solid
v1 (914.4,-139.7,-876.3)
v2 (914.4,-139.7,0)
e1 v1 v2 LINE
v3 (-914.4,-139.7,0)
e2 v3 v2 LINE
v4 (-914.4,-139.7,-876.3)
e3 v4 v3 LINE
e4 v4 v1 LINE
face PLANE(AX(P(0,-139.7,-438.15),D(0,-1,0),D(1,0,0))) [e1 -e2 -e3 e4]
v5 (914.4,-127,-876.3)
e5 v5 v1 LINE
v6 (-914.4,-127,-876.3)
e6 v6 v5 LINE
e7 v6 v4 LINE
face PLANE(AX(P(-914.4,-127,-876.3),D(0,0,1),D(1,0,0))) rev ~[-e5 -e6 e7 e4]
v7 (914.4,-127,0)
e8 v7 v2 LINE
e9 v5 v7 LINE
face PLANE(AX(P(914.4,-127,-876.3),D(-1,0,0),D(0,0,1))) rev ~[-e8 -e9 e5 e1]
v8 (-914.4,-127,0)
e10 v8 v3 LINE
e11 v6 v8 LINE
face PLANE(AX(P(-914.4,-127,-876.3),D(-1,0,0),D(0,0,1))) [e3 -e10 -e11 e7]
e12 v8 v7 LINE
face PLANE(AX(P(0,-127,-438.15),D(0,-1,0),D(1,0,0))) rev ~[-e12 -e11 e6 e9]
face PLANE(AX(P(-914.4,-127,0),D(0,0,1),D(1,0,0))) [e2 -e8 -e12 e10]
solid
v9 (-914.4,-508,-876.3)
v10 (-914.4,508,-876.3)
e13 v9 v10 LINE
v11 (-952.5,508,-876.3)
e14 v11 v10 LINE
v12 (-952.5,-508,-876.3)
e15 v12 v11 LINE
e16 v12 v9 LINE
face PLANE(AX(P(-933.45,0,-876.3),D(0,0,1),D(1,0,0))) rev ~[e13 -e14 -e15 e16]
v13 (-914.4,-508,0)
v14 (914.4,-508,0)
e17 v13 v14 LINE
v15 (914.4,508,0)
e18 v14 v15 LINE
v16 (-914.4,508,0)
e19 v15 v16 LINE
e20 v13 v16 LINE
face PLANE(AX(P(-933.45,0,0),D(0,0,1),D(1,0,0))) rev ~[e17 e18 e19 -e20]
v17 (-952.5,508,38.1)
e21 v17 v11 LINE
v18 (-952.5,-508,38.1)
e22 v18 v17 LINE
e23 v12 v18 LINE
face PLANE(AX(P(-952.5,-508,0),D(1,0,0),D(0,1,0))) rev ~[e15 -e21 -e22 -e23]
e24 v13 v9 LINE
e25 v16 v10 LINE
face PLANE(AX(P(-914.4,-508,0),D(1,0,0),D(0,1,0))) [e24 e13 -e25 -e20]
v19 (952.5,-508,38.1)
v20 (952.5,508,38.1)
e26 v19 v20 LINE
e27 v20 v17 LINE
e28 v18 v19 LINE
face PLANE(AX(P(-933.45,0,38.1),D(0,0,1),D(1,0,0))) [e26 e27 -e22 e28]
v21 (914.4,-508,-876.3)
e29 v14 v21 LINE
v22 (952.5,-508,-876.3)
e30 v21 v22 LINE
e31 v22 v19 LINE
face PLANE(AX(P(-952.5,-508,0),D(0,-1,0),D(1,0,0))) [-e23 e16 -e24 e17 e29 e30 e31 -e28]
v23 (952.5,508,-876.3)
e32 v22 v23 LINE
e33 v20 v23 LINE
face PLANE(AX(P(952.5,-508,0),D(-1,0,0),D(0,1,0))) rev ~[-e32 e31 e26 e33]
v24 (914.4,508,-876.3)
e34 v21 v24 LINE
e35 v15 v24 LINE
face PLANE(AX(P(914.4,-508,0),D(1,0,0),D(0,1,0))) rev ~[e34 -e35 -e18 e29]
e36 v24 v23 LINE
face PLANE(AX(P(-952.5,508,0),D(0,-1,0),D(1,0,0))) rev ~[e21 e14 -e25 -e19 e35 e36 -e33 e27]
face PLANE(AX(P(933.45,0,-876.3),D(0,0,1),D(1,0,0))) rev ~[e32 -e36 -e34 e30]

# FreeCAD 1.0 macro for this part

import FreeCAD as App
import Part
import Sketcher
from FreeCAD import Vector
Q = App.Units.Quantity

doc = App.newDocument("Part")
body = doc.addObject("PartDesign::Body", "Body")

# Sketch on XY plane
sketch1 = body.newObject("Sketcher::SketchObject", "Sketch")
sketch1.AttachmentSupport = (doc.getObject("XY_Plane"), [""])
sketch1.MapMode = "FlatFace"
sketch1.addGeometry([
    Part.LineSegment(Vector(-952, 508, 0), Vector(-952, -508, 0)),
    Part.LineSegment(Vector(-952, -508, 0), Vector(952, -508, 0)),
    Part.LineSegment(Vector(952, -508, 0), Vector(952, 508, 0)),
    Part.LineSegment(Vector(952, 508, 0), Vector(-952, 508, 0)),
], False)
sketch1.addConstraint([
    Sketcher.Constraint("Coincident", 0, 2, 1, 1),
    Sketcher.Constraint("Coincident", 1, 2, 2, 1),
    Sketcher.Constraint("Coincident", 2, 2, 3, 1),
    Sketcher.Constraint("Coincident", 3, 2, 0, 1),
    Sketcher.Constraint("Vertical", 0),
    Sketcher.Constraint("Horizontal", 1),
    Sketcher.Constraint("Vertical", 2),
    Sketcher.Constraint("Horizontal", 3),
    Sketcher.Constraint("Symmetric", 0, 2, 2, 2, -1, 1),
    Sketcher.Constraint("DistanceX", 1, 1, 1, 2, Q("75 in")),
    Sketcher.Constraint("DistanceY", 0, 2, 0, 1, Q("40 in")),
])
pad1 = body.newObject("PartDesign::Pad", "Pad")
pad1.Profile = sketch1
pad1.Length = Q("1.5 in")

# Sketch on XY plane
sketch2 = body.newObject("Sketcher::SketchObject", "Sketch001")
sketch2.AttachmentSupport = (doc.getObject("XY_Plane"), [""])
sketch2.MapMode = "FlatFace"
sketch2.addGeometry([
    Part.LineSegment(Vector(-952, 508, 0), Vector(-952, -508, 0)),  # 0
    Part.LineSegment(Vector(-952, -508, 0), Vector(-914, -508, 0)),  # 1
    Part.LineSegment(Vector(-914, -508, 0), Vector(-914, 508, 0)),  # 2
    Part.LineSegment(Vector(-914, 508, 0), Vector(-952, 508, 0)),  # 3
    Part.LineSegment(Vector(914, 508, 0), Vector(914, -508, 0)),  # 4
    Part.LineSegment(Vector(914, -508, 0), Vector(952, -508, 0)),  # 5
    Part.LineSegment(Vector(952, -508, 0), Vector(952, 508, 0)),  # 6
    Part.LineSegment(Vector(952, 508, 0), Vector(914, 508, 0)),  # 7
], False)
sketch2.addConstraint([
    Sketcher.Constraint("Coincident", 0, 2, 1, 1),
    Sketcher.Constraint("Coincident", 1, 2, 2, 1),
    Sketcher.Constraint("Coincident", 2, 2, 3, 1),
    Sketcher.Constraint("Coincident", 3, 2, 0, 1),
    Sketcher.Constraint("Coincident", 4, 2, 5, 1),
    Sketcher.Constraint("Coincident", 5, 2, 6, 1),
    Sketcher.Constraint("Coincident", 6, 2, 7, 1),
    Sketcher.Constraint("Coincident", 7, 2, 4, 1),
    Sketcher.Constraint("Vertical", 0),
    Sketcher.Constraint("Horizontal", 1),
    Sketcher.Constraint("Vertical", 2),
    Sketcher.Constraint("Horizontal", 3),
    Sketcher.Constraint("Vertical", 4),
    Sketcher.Constraint("Horizontal", 5),
    Sketcher.Constraint("Vertical", 6),
    Sketcher.Constraint("Horizontal", 7),
    Sketcher.Constraint("Symmetric", 2, 2, 4, 2, -1, 1),
    Sketcher.Constraint("Symmetric", 0, 2, 6, 2, -1, 1),
    Sketcher.Constraint("Horizontal", 1, 2, 4, 2),
    Sketcher.Constraint("DistanceY", 0, 2, 0, 1, Q("40 in")),
    Sketcher.Constraint("DistanceX", 1, 1, 1, 2, Q("1.5 in")),
    Sketcher.Constraint("DistanceX", 1, 2, -1, 1, Q("36 in")),
])
pad2 = body.newObject("PartDesign::Pad", "Pad001")
pad2.Profile = sketch2
pad2.Length = Q("34.5 in")
pad2.Reversed = True
body2 = doc.addObject("PartDesign::Body", "Body001")

# Sketch on XZ plane
sketch3 = body2.newObject("Sketcher::SketchObject", "Sketch002")
sketch3.AttachmentSupport = (doc.getObject("XZ_Plane001"), [""])
sketch3.MapMode = "FlatFace"
sketch3.AttachmentOffset = App.Placement(Vector(0, 0, 5 * 25.4), App.Rotation())
sketch3.addGeometry([
    Part.LineSegment(Vector(-914, 0, 0), Vector(-914, -876, 0)),
    Part.LineSegment(Vector(-914, -876, 0), Vector(914, -876, 0)),
    Part.LineSegment(Vector(914, -876, 0), Vector(914, 0, 0)),
    Part.LineSegment(Vector(914, 0, 0), Vector(-914, 0, 0)),
], False)
sketch3.addConstraint([
    Sketcher.Constraint("Coincident", 0, 2, 1, 1),
    Sketcher.Constraint("Coincident", 1, 2, 2, 1),
    Sketcher.Constraint("Coincident", 2, 2, 3, 1),
    Sketcher.Constraint("Coincident", 3, 2, 0, 1),
    Sketcher.Constraint("Vertical", 0),
    Sketcher.Constraint("Horizontal", 1),
    Sketcher.Constraint("Vertical", 2),
    Sketcher.Constraint("Horizontal", 3),
    Sketcher.Constraint("Symmetric", 2, 2, 3, 2, -1, 1),
    Sketcher.Constraint("DistanceX", 1, 1, 1, 2, Q("72 in")),
    Sketcher.Constraint("DistanceY", 0, 2, 0, 1, Q("34.5 in")),
])
pad3 = body2.newObject("PartDesign::Pad", "Pad002")
pad3.Profile = sketch3
pad3.Length = Q("0.5 in")

doc.recompute()
